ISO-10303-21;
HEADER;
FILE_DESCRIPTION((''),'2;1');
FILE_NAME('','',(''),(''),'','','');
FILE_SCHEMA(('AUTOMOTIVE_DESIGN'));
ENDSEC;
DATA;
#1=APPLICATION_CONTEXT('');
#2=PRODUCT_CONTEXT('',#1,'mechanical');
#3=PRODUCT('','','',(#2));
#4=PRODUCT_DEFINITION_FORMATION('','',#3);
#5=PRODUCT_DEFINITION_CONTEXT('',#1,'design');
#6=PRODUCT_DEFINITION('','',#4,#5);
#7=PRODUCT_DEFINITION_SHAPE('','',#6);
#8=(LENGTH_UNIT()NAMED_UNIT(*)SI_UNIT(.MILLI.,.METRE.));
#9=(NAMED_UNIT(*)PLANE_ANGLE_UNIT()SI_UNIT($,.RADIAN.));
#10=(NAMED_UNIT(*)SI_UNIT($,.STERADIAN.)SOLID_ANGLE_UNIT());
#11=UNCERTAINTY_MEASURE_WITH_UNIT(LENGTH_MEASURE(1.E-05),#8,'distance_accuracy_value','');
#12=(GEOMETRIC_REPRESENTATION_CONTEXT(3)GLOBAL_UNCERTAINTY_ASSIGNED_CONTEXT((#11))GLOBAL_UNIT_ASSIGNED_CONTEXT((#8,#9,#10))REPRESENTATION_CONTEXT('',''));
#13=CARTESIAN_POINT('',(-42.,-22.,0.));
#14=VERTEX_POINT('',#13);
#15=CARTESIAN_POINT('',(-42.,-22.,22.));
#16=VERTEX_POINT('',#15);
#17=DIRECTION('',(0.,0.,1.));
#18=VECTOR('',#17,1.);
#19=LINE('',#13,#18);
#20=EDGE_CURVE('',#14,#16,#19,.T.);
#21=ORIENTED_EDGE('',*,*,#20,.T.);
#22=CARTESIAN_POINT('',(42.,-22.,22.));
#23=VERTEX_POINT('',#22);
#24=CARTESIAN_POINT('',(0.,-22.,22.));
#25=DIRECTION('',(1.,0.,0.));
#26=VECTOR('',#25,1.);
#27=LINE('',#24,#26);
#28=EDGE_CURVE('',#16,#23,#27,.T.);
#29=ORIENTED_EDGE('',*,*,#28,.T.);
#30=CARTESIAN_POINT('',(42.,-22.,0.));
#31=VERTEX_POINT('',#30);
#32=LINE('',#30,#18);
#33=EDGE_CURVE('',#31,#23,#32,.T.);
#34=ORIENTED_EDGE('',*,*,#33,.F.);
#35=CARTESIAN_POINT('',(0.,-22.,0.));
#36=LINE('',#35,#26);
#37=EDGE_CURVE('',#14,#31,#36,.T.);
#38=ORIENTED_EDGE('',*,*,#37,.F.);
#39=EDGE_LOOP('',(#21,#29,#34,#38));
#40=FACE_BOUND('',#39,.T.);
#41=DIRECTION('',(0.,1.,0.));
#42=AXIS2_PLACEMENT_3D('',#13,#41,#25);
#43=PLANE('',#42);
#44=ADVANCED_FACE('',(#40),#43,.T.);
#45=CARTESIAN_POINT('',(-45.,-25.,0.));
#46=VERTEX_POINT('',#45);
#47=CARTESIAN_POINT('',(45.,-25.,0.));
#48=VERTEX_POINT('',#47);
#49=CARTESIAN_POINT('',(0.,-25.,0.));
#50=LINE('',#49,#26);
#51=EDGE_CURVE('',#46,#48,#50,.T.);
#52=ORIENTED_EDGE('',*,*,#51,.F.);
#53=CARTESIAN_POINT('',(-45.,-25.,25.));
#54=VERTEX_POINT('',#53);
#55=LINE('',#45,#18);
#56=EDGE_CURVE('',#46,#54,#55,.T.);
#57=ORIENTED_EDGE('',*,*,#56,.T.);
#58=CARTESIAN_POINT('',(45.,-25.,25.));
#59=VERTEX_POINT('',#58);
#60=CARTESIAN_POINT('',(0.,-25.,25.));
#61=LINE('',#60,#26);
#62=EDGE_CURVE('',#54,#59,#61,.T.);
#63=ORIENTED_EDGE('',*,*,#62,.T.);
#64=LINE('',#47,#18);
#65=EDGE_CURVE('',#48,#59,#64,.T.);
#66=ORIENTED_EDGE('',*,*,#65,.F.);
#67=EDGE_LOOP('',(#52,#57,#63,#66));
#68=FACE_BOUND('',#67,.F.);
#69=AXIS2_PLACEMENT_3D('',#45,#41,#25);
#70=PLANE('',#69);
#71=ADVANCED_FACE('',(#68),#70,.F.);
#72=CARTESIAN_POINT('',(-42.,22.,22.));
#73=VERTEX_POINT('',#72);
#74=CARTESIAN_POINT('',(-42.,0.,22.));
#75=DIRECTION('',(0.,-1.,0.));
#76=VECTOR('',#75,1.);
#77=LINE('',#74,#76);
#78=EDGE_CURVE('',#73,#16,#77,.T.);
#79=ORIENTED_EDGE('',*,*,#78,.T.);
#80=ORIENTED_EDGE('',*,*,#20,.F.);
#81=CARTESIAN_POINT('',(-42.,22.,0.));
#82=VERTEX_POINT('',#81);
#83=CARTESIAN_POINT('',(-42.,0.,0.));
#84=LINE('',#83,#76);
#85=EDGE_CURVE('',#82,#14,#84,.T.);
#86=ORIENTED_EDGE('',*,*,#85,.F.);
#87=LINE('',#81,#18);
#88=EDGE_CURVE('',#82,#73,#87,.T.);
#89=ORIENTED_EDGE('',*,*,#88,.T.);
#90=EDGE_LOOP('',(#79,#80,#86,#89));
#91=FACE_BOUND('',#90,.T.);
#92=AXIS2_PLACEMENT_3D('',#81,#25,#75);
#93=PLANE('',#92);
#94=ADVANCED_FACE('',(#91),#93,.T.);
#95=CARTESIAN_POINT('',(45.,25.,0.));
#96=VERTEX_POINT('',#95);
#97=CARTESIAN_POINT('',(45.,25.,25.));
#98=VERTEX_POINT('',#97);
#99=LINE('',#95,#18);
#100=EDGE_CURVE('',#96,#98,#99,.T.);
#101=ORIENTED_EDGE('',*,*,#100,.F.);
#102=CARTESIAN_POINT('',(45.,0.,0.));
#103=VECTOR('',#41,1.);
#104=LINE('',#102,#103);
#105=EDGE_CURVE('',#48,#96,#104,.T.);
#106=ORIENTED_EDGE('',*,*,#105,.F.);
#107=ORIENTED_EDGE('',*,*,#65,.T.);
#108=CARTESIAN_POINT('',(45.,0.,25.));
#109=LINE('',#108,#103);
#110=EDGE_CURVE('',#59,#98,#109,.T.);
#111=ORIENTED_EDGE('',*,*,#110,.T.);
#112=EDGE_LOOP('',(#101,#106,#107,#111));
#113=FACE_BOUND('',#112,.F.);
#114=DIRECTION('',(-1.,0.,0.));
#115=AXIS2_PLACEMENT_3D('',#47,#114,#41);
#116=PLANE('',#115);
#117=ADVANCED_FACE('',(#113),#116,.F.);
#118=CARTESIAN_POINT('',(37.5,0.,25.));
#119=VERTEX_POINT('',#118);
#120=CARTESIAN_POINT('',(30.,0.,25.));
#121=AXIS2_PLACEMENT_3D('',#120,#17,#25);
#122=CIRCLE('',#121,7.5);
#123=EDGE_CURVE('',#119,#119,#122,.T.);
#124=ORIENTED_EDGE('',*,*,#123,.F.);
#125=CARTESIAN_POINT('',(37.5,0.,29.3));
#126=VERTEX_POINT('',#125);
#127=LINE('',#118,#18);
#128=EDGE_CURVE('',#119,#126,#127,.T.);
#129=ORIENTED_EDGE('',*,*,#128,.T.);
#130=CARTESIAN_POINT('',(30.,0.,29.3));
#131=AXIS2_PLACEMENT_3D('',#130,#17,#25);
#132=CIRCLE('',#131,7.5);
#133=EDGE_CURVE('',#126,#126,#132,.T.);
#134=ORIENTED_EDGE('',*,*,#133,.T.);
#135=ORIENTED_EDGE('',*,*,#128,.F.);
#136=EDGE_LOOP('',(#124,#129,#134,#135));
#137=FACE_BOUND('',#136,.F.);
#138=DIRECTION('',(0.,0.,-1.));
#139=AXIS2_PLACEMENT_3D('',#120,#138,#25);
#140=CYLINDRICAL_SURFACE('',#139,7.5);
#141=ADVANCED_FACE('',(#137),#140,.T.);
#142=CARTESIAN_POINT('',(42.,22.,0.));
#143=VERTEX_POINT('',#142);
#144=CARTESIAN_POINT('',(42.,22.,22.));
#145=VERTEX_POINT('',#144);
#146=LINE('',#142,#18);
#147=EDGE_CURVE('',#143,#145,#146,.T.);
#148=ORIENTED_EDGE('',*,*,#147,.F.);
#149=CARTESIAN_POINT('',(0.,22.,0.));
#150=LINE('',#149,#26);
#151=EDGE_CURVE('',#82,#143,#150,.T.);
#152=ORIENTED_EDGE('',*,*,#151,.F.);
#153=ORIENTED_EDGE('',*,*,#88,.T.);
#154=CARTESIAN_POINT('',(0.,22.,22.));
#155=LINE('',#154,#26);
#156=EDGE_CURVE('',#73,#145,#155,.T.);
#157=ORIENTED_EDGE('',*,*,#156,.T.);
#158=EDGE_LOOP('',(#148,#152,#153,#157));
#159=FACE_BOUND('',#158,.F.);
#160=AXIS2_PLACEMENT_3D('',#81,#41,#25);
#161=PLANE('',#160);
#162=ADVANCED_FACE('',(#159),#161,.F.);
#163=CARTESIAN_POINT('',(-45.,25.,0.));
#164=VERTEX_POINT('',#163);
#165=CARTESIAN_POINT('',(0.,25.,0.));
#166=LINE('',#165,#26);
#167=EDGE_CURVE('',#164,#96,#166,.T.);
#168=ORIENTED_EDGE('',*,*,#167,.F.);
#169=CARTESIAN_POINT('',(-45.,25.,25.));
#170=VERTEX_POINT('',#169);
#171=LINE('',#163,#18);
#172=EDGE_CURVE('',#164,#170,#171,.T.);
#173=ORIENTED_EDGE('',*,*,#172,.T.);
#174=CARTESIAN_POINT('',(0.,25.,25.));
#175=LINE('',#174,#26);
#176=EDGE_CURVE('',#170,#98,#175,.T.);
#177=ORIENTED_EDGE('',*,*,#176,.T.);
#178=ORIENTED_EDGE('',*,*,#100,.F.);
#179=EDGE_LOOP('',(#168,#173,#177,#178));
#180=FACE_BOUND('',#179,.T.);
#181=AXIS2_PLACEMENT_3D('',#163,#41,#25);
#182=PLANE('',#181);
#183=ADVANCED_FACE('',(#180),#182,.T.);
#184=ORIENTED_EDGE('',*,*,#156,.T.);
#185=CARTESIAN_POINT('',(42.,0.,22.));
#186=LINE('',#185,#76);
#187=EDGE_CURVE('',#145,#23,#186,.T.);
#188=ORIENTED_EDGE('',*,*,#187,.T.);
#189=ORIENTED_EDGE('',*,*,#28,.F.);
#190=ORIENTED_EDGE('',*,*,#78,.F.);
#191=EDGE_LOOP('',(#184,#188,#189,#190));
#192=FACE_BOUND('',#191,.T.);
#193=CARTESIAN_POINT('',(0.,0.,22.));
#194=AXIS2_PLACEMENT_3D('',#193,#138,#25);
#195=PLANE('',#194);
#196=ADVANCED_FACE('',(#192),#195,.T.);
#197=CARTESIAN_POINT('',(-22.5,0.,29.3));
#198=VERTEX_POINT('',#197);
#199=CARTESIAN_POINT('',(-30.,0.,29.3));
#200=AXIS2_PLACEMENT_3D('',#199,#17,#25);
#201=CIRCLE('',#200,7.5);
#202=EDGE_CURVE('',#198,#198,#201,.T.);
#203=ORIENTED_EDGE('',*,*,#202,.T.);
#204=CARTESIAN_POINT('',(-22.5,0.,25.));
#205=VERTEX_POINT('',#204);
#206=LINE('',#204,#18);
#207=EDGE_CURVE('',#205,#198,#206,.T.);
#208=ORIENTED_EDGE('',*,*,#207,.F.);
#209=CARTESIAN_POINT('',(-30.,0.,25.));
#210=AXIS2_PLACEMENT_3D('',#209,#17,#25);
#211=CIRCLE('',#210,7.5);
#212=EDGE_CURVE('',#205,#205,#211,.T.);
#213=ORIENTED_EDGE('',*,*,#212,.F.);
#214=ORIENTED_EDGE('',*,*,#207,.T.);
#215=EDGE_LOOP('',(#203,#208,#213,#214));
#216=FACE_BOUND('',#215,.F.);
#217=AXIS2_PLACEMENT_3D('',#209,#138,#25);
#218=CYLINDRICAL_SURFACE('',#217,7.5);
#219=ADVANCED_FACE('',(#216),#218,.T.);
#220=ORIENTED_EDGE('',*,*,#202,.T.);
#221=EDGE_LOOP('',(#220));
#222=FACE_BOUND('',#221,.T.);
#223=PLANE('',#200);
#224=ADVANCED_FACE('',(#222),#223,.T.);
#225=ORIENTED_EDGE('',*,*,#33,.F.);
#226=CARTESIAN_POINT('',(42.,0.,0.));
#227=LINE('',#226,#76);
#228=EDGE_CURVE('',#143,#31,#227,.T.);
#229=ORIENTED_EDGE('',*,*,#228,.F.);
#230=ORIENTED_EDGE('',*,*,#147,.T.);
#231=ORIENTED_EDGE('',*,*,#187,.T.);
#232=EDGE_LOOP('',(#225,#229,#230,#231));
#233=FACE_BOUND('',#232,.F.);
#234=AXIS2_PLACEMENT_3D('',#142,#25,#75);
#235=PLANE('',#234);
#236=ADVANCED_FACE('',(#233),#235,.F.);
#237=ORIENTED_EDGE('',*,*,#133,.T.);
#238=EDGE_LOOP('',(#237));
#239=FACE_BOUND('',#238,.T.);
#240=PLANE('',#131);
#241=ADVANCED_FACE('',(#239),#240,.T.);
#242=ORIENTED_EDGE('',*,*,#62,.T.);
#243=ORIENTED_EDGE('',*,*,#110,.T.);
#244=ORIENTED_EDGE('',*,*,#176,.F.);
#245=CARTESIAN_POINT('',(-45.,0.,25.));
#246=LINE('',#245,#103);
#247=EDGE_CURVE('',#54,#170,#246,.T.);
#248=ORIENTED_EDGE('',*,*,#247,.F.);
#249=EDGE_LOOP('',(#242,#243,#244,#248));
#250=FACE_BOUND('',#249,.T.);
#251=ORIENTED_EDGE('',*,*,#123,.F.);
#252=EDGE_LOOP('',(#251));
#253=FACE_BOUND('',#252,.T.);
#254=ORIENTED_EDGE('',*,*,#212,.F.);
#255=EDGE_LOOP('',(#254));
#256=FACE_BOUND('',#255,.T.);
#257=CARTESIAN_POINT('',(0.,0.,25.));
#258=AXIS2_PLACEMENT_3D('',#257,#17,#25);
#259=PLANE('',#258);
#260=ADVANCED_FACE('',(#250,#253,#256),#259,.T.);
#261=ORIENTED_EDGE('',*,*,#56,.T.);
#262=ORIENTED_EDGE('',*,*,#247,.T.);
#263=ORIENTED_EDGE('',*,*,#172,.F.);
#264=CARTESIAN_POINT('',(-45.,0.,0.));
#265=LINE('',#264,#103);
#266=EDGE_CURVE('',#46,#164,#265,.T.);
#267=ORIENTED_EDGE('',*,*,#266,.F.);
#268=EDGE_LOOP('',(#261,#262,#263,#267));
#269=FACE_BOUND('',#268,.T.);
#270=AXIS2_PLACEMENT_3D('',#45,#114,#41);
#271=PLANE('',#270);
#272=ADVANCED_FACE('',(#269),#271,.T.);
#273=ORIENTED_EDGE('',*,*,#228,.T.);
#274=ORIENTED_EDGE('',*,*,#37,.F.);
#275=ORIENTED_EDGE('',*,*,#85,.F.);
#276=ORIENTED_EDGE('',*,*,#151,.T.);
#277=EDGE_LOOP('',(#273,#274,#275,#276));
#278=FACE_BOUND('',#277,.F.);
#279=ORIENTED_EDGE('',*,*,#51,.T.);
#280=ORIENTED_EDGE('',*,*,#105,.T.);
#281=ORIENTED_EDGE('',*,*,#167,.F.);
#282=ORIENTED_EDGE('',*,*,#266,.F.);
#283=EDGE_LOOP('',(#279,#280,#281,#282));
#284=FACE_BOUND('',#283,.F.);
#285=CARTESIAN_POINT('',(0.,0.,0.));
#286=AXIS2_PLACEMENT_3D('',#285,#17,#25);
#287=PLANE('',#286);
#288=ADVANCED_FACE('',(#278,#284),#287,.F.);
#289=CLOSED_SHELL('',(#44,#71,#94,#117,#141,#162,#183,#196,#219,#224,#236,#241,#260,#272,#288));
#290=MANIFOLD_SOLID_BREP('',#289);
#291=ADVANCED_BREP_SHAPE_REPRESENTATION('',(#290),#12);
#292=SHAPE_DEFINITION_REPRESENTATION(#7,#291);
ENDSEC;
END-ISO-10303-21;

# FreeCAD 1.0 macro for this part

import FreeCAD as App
import Part
import Sketcher

doc = App.newDocument("Part")
body = doc.addObject("PartDesign::Body", "Body")

# Sketch on XY plane
sketch1 = body.newObject("Sketcher::SketchObject", "Sketch")
sketch1.AttachmentSupport = (doc.getObject("XY_Plane"), [""])
sketch1.MapMode = "FlatFace"
sketch1.addGeometry(Part.LineSegment(App.Vector(-45, 25, 0), App.Vector(-45, -25, 0)), False)
sketch1.addGeometry(Part.LineSegment(App.Vector(-45, -25, 0), App.Vector(45, -25, 0)), False)
sketch1.addGeometry(Part.LineSegment(App.Vector(45, -25, 0), App.Vector(45, 25, 0)), False)
sketch1.addGeometry(Part.LineSegment(App.Vector(45, 25, 0), App.Vector(-45, 25, 0)), False)
sketch1.addConstraint(Sketcher.Constraint("Coincident", 0, 2, 1, 1))
sketch1.addConstraint(Sketcher.Constraint("Coincident", 1, 2, 2, 1))
sketch1.addConstraint(Sketcher.Constraint("Coincident", 2, 2, 3, 1))
sketch1.addConstraint(Sketcher.Constraint("Coincident", 3, 2, 0, 1))
sketch1.addConstraint(Sketcher.Constraint("Vertical", 0))
sketch1.addConstraint(Sketcher.Constraint("Horizontal", 1))
sketch1.addConstraint(Sketcher.Constraint("Vertical", 2))
sketch1.addConstraint(Sketcher.Constraint("Horizontal", 3))
sketch1.addConstraint(Sketcher.Constraint("Symmetric", 0, 2, 2, 2, -1, 1))
sketch1.addConstraint(Sketcher.Constraint("DistanceX", 1, 1, 1, 2, 90.0))
sketch1.addConstraint(Sketcher.Constraint("DistanceY", 0, 2, 0, 1, 50.0))
pad1 = body.newObject("PartDesign::Pad", "Pad")
pad1.Profile = sketch1
pad1.Length = 25

# Sketch on XY plane
sketch2 = body.newObject("Sketcher::SketchObject", "Sketch001")
sketch2.AttachmentSupport = (doc.getObject("XY_Plane"), [""])
sketch2.MapMode = "FlatFace"
sketch2.AttachmentOffset = App.Placement(App.Vector(0, 0, 25), App.Rotation())
sketch2.addGeometry(Part.Circle(App.Vector(30, 0, 0), App.Vector(0, 0, 1), 7.5), False)
sketch2.addGeometry(Part.Circle(App.Vector(-30, 0, 0), App.Vector(0, 0, 1), 7.5), False)
sketch2.addConstraint(Sketcher.Constraint("Equal", 0, 1))
sketch2.addConstraint(Sketcher.Constraint("Symmetric", 0, 3, 1, 3, -1, 1))
sketch2.addConstraint(Sketcher.Constraint("PointOnObject", 0, 3, -1))
sketch2.addConstraint(Sketcher.Constraint("Diameter", 0, 15.0))
sketch2.addConstraint(Sketcher.Constraint("DistanceX", -1, 1, 0, 3, 30.0))
pad2 = body.newObject("PartDesign::Pad", "Pad001")
pad2.Profile = sketch2
pad2.Length = 4.3

# Sketch on XY plane
sketch3 = body.newObject("Sketcher::SketchObject", "Sketch002")
sketch3.AttachmentSupport = (doc.getObject("XY_Plane"), [""])
sketch3.MapMode = "FlatFace"
sketch3.addGeometry(Part.LineSegment(App.Vector(-42, -22, 0), App.Vector(-42, 22, 0)), False)
sketch3.addGeometry(Part.LineSegment(App.Vector(-42, 22, 0), App.Vector(42, 22, 0)), False)
sketch3.addGeometry(Part.LineSegment(App.Vector(42, 22, 0), App.Vector(42, -22, 0)), False)
sketch3.addGeometry(Part.LineSegment(App.Vector(42, -22, 0), App.Vector(-42, -22, 0)), False)
sketch3.addConstraint(Sketcher.Constraint("Coincident", 0, 2, 1, 1))
sketch3.addConstraint(Sketcher.Constraint("Coincident", 1, 2, 2, 1))
sketch3.addConstraint(Sketcher.Constraint("Coincident", 2, 2, 3, 1))
sketch3.addConstraint(Sketcher.Constraint("Coincident", 3, 2, 0, 1))
sketch3.addConstraint(Sketcher.Constraint("Vertical", 0))
sketch3.addConstraint(Sketcher.Constraint("Horizontal", 1))
sketch3.addConstraint(Sketcher.Constraint("Vertical", 2))
sketch3.addConstraint(Sketcher.Constraint("Horizontal", 3))
sketch3.addConstraint(Sketcher.Constraint("Symmetric", 0, 2, 2, 2, -1, 1))
sketch3.addConstraint(Sketcher.Constraint("DistanceX", 1, 1, 1, 2, 84.0))
sketch3.addConstraint(Sketcher.Constraint("DistanceY", 0, 1, 0, 2, 44.0))
pocket1 = body.newObject("PartDesign::Pocket", "Pocket")
pocket1.Profile = sketch3
pocket1.Length = 22
pocket1.Reversed = True

doc.recompute()
